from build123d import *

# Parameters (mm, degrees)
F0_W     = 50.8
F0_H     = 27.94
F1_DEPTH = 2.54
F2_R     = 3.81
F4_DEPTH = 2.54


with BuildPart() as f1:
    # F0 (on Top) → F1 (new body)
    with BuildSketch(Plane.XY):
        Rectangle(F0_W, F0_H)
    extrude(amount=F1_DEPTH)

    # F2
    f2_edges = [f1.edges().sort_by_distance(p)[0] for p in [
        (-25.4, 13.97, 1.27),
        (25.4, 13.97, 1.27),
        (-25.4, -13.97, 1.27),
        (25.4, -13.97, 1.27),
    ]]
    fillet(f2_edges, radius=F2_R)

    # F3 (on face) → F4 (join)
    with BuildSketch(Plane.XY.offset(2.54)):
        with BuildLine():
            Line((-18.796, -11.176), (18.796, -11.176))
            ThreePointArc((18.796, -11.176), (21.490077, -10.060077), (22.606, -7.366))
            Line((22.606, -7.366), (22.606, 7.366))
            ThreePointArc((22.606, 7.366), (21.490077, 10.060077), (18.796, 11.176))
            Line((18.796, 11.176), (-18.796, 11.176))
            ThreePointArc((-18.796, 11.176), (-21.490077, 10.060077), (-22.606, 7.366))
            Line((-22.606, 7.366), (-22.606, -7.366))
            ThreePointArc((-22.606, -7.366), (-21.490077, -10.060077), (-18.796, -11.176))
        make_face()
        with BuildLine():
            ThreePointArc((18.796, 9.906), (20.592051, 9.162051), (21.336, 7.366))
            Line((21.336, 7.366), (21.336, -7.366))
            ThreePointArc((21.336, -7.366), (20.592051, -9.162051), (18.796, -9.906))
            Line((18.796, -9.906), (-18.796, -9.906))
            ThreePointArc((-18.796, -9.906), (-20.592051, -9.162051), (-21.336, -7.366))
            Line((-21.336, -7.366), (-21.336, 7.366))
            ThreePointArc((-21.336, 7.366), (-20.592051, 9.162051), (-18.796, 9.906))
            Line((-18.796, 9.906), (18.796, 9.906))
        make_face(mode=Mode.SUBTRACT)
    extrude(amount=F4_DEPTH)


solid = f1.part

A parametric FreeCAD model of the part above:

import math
import FreeCAD as App
import Part
import Sketcher

V = App.Vector
Q = App.Units.Quantity


def edges_at(feature, points):
    """Names of the edges that pass closest to the given points."""
    edges = feature.Shape.Edges
    near = lambda p: min(range(len(edges)), key=lambda i: edges[i].distToShape(Part.Vertex(*p))[0])
    return sorted({f"Edge{near(p) + 1}" for p in points})


def add_polygon(sketch, points):
    """Adds a closed chain of lines whose ends are joined by coincident constraints."""
    first, n = sketch.GeometryCount, len(points)
    for a, b in zip(points, points[1:] + points[:1]):
        sketch.addGeometry(Part.LineSegment(App.Vector(*a, 0), App.Vector(*b, 0)), False)
    for i in range(n):
        sketch.addConstraint(Sketcher.Constraint("Coincident", first + i, 2, first + (i + 1) % n, 1))

doc = App.newDocument("Part")
params = doc.addObject("Spreadsheet::Sheet", "Params")
for row, (alias, value) in enumerate([
    ("sketch1_width", "2 in"),
    ("sketch1_height", "1.1 in"),
    ("pad1_length", "0.1 in"),
    ("fillet_radius", "0.15 in"),
    ("sketch2_radius", "0.1 in"),
    ("sketch2_radius2", "0.15 in"),
    ("sketch2_width", "1.48 in"),
    ("sketch2_height", "0.58 in"),
    ("pad2_length", "0.1 in"),
], start=1):
    params.set(f"A{row}", alias)
    params.set(f"B{row}", "=" + value)
    params.setAlias(f"B{row}", alias)

body = doc.addObject("PartDesign::Body", "Body")

# Sketch on XY plane
sketch1 = body.newObject("Sketcher::SketchObject", "Sketch")
sketch1.AttachmentSupport = (doc.getObject("XY_Plane"), [""])
sketch1.MapMode = "FlatFace"
add_polygon(sketch1, [(-25, 14), (-25, -14), (25, -14), (25, 14)])  # lines 0-3
sketch1.addConstraint([
    Sketcher.Constraint("Vertical", 0),
    Sketcher.Constraint("Horizontal", 1),
    Sketcher.Constraint("Vertical", 2),
    Sketcher.Constraint("Horizontal", 3),
    Sketcher.Constraint("Symmetric", 0, 2, 2, 2, -1, 1),
    Sketcher.Constraint("DistanceX", 1, 1, 1, 2, Q("2 in")),
    Sketcher.Constraint("DistanceY", 0, 2, 0, 1, Q("1.1 in")),
])
sketch1.setExpression("Constraints[9]", "Params.sketch1_width")
sketch1.setExpression("Constraints[10]", "Params.sketch1_height")
pad1 = body.newObject("PartDesign::Pad", "Pad")
pad1.Profile = sketch1
pad1.setExpression("Length", "Params.pad1_length")
doc.recompute()

fillet = body.newObject("PartDesign::Fillet", "Fillet")
fillet.Base = (pad1, edges_at(pad1, [
    (-25.4, 13.97, 1.27),
    (25.4, 13.97, 1.27),
    (-25.4, -13.97, 1.27),
    (25.4, -13.97, 1.27),
]))
fillet.setExpression("Radius", "Params.fillet_radius")

# Sketch on XY plane
sketch2 = body.newObject("Sketcher::SketchObject", "Sketch001")
sketch2.AttachmentSupport = (doc.getObject("XY_Plane"), [""])
sketch2.MapMode = "FlatFace"
sketch2.AttachmentOffset = App.Placement(V(0, 0, 0.1 * 25.4), App.Rotation())
sketch2.addGeometry([
    Part.LineSegment(V(-18.8, -11.2, 0), V(18.8, -11.2, 0)),  # 0
    Part.ArcOfCircle(Part.Circle(V(18.8, -7.4, 0), V(0, 0, 1), 3.8), math.radians(-90), math.radians(0)),  # 1
    Part.LineSegment(V(22.6, -7.4, 0), V(22.6, 7.4, 0)),  # 2
    Part.ArcOfCircle(Part.Circle(V(18.8, 7.4, 0), V(0, 0, 1), 3.8), math.radians(0), math.radians(90)),  # 3
    Part.LineSegment(V(18.8, 11.2, 0), V(-18.8, 11.2, 0)),  # 4
    Part.ArcOfCircle(Part.Circle(V(-18.8, 7.4, 0), V(0, 0, 1), 3.8), math.radians(90), math.radians(180)),  # 5
    Part.LineSegment(V(-22.6, 7.4, 0), V(-22.6, -7.4, 0)),  # 6
    Part.ArcOfCircle(Part.Circle(V(-18.8, -7.4, 0), V(0, 0, 1), 3.8), math.radians(180), math.radians(270)),  # 7
    Part.LineSegment(V(-18.8, 9.9, 0), V(18.8, 9.9, 0)),  # 8
    Part.ArcOfCircle(Part.Circle(V(18.8, 7.4, 0), V(0, 0, 1), 2.5), math.radians(0), math.radians(90)),  # 9
    Part.LineSegment(V(21.3, 7.4, 0), V(21.3, -7.4, 0)),  # 10
    Part.ArcOfCircle(Part.Circle(V(18.8, -7.4, 0), V(0, 0, 1), 2.5), math.radians(-90), math.radians(0)),  # 11
    Part.LineSegment(V(18.8, -9.9, 0), V(-18.8, -9.9, 0)),  # 12
    Part.ArcOfCircle(Part.Circle(V(-18.8, -7.4, 0), V(0, 0, 1), 2.5), math.radians(-180), math.radians(-90)),  # 13
    Part.LineSegment(V(-21.3, -7.4, 0), V(-21.3, 7.4, 0)),  # 14
    Part.ArcOfCircle(Part.Circle(V(-18.8, 7.4, 0), V(0, 0, 1), 2.5), math.radians(90), math.radians(180)),  # 15
], False)
sketch2.addConstraint([
    Sketcher.Constraint("Tangent", 0, 2, 1, 1),
    Sketcher.Constraint("Tangent", 1, 2, 2, 1),
    Sketcher.Constraint("Tangent", 2, 2, 3, 1),
    Sketcher.Constraint("Tangent", 3, 2, 4, 1),
    Sketcher.Constraint("Tangent", 4, 2, 5, 1),
    Sketcher.Constraint("Tangent", 5, 2, 6, 1),
    Sketcher.Constraint("Tangent", 6, 2, 7, 1),
    Sketcher.Constraint("Tangent", 7, 2, 0, 1),
    Sketcher.Constraint("Tangent", 8, 2, 9, 2),
    Sketcher.Constraint("Tangent", 9, 1, 10, 1),
    Sketcher.Constraint("Tangent", 10, 2, 11, 2),
    Sketcher.Constraint("Tangent", 11, 1, 12, 1),
    Sketcher.Constraint("Tangent", 12, 2, 13, 2),
    Sketcher.Constraint("Tangent", 13, 1, 14, 1),
    Sketcher.Constraint("Tangent", 14, 2, 15, 2),
    Sketcher.Constraint("Tangent", 15, 1, 8, 1),
    Sketcher.Constraint("Horizontal", 0),
    Sketcher.Constraint("Vertical", 2),
    Sketcher.Constraint("Horizontal", 4),
    Sketcher.Constraint("Vertical", 6),
    Sketcher.Constraint("Horizontal", 8),
    Sketcher.Constraint("Vertical", 10),
    Sketcher.Constraint("Horizontal", 12),
    Sketcher.Constraint("Vertical", 14),
    Sketcher.Constraint("Coincident", 9, 3, 3, 3),
    Sketcher.Constraint("Coincident", 11, 3, 1, 3),
    Sketcher.Constraint("Coincident", 13, 3, 7, 3),
    Sketcher.Constraint("Equal", 1, 3),
    Sketcher.Constraint("Equal", 3, 5),
    Sketcher.Constraint("Equal", 5, 7),
    Sketcher.Constraint("Equal", 13, 15),
    Sketcher.Constraint("Symmetric", 1, 3, 5, 3, -1, 1),
    Sketcher.Constraint("Radius", 9, Q("0.1 in")),
    Sketcher.Constraint("Radius", 1, Q("0.15 in")),
    Sketcher.Constraint("DistanceX", 0, 1, 0, 2, Q("1.48 in")),
    Sketcher.Constraint("DistanceY", 2, 1, 2, 2, Q("0.58 in")),
])
sketch2.setExpression("Constraints[32]", "Params.sketch2_radius")
sketch2.setExpression("Constraints[33]", "Params.sketch2_radius2")
sketch2.setExpression("Constraints[34]", "Params.sketch2_width")
sketch2.setExpression("Constraints[35]", "Params.sketch2_height")
pad2 = body.newObject("PartDesign::Pad", "Pad001")
pad2.Profile = sketch2
pad2.setExpression("Length", "Params.pad2_length")

doc.recompute()
